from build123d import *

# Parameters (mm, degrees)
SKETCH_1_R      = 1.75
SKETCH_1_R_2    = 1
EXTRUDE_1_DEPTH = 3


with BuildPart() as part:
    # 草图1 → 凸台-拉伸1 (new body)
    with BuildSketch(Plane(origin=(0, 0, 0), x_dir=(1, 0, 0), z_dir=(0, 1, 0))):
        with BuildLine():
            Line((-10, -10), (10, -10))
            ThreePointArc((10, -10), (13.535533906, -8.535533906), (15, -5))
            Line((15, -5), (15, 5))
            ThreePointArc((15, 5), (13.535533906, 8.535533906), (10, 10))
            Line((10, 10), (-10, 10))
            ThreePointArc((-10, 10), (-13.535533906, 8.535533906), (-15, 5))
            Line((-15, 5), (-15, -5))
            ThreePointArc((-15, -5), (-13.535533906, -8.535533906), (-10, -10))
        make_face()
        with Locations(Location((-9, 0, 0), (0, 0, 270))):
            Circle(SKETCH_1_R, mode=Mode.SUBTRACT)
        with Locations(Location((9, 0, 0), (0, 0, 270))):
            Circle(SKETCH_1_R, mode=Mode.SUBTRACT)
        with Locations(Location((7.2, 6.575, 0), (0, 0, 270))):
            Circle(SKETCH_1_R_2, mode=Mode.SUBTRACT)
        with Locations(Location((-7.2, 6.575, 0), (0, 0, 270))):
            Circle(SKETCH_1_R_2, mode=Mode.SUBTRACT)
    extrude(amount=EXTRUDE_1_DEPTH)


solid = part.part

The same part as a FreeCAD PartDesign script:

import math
import FreeCAD as App
import Part
import Sketcher
Q = App.Units.Quantity

doc = App.newDocument("Part")
params = doc.addObject("Spreadsheet::Sheet", "Params")
for row, (alias, value) in enumerate([
    ("sketch1_diameter", "2 mm"),
    ("sketch1_radius", "5 mm"),
    ("sketch1_diameter2", "3.5 mm"),
    ("sketch1_width", "20 mm"),
    ("sketch1_height", "10 mm"),
    ("pad1_length", "3 mm"),
], start=1):
    params.set(f"A{row}", alias)
    params.set(f"B{row}", "=" + value)
    params.setAlias(f"B{row}", alias)

body = doc.addObject("PartDesign::Body", "Body")

sketch1 = body.newObject("Sketcher::SketchObject", "Sketch")
sketch1.AttachmentSupport = (doc.getObject("XZ_Plane"), [""])
sketch1.MapMode = "FlatFace"
sketch1.addGeometry(Part.LineSegment(App.Vector(-10, 10, 0), App.Vector(10, 10, 0)), False)
sketch1.addGeometry(Part.ArcOfCircle(Part.Circle(App.Vector(10, 5, 0), App.Vector(0, 0, 1), 5), math.radians(0), math.radians(90)), False)
sketch1.addGeometry(Part.LineSegment(App.Vector(15, 5, 0), App.Vector(15, -5, 0)), False)
sketch1.addGeometry(Part.ArcOfCircle(Part.Circle(App.Vector(10, -5, 0), App.Vector(0, 0, 1), 5), math.radians(-90), math.radians(0)), False)
sketch1.addGeometry(Part.LineSegment(App.Vector(10, -10, 0), App.Vector(-10, -10, 0)), False)
sketch1.addGeometry(Part.ArcOfCircle(Part.Circle(App.Vector(-10, -5, 0), App.Vector(0, 0, 1), 5), math.radians(180), math.radians(270)), False)
sketch1.addGeometry(Part.LineSegment(App.Vector(-15, -5, 0), App.Vector(-15, 5, 0)), False)
sketch1.addGeometry(Part.ArcOfCircle(Part.Circle(App.Vector(-10, 5, 0), App.Vector(0, 0, 1), 5), math.radians(90), math.radians(180)), False)
sketch1.addGeometry(Part.Circle(App.Vector(-9, 0, 0), App.Vector(0, 0, 1), 1.8), False)
sketch1.addGeometry(Part.Circle(App.Vector(9, 0, 0), App.Vector(0, 0, 1), 1.8), False)
sketch1.addGeometry(Part.Circle(App.Vector(-7.2, -6.6, 0), App.Vector(0, 0, 1), 1), False)
sketch1.addGeometry(Part.Circle(App.Vector(7.2, -6.6, 0), App.Vector(0, 0, 1), 1), False)
sketch1.addConstraint(Sketcher.Constraint("Tangent", 0, 2, 1, 2))
sketch1.addConstraint(Sketcher.Constraint("Tangent", 1, 1, 2, 1))
sketch1.addConstraint(Sketcher.Constraint("Tangent", 2, 2, 3, 2))
sketch1.addConstraint(Sketcher.Constraint("Tangent", 3, 1, 4, 1))
sketch1.addConstraint(Sketcher.Constraint("Tangent", 4, 2, 5, 2))
sketch1.addConstraint(Sketcher.Constraint("Tangent", 5, 1, 6, 1))
sketch1.addConstraint(Sketcher.Constraint("Tangent", 6, 2, 7, 2))
sketch1.addConstraint(Sketcher.Constraint("Tangent", 7, 1, 0, 1))
sketch1.addConstraint(Sketcher.Constraint("Horizontal", 0))
sketch1.addConstraint(Sketcher.Constraint("Vertical", 2))
sketch1.addConstraint(Sketcher.Constraint("Horizontal", 4))
sketch1.addConstraint(Sketcher.Constraint("Vertical", 6))
sketch1.addConstraint(Sketcher.Constraint("Equal", 1, 3))
sketch1.addConstraint(Sketcher.Constraint("Equal", 3, 5))
sketch1.addConstraint(Sketcher.Constraint("Equal", 5, 7))
sketch1.addConstraint(Sketcher.Constraint("Equal", 8, 9))
sketch1.addConstraint(Sketcher.Constraint("Equal", 10, 11))
sketch1.addConstraint(Sketcher.Constraint("Symmetric", 1, 3, 5, 3, -1, 1))
sketch1.addConstraint(Sketcher.Constraint("Symmetric", 8, 3, 9, 3, -1, 1))
sketch1.addConstraint(Sketcher.Constraint("Symmetric", 10, 3, 11, 3, -2))
sketch1.addConstraint(Sketcher.Constraint("PointOnObject", 8, 3, -1))
sketch1.addConstraint(Sketcher.Constraint("Diameter", 10, Q("2 mm")))
sketch1.addConstraint(Sketcher.Constraint("Radius", 1, Q("5 mm")))
sketch1.addConstraint(Sketcher.Constraint("Diameter", 8, Q("3.5 mm")))
sketch1.addConstraint(Sketcher.Constraint("DistanceX", 0, 1, 0, 2, Q("20 mm")))
sketch1.addConstraint(Sketcher.Constraint("DistanceY", 2, 2, 2, 1, Q("10 mm")))
sketch1.addConstraint(Sketcher.Constraint("DistanceX", 8, 3, -1, 1, Q("9 mm")))
sketch1.addConstraint(Sketcher.Constraint("DistanceX", 10, 3, -1, 1, Q("7.2 mm")))
sketch1.addConstraint(Sketcher.Constraint("DistanceY", 10, 3, -1, 1, Q("6.575 mm")))
sketch1.setExpression("Constraints[21]", "Params.sketch1_diameter")
sketch1.setExpression("Constraints[22]", "Params.sketch1_radius")
sketch1.setExpression("Constraints[23]", "Params.sketch1_diameter2")
sketch1.setExpression("Constraints[24]", "Params.sketch1_width")
sketch1.setExpression("Constraints[25]", "Params.sketch1_height")
pad1 = body.newObject("PartDesign::Pad", "Pad")
pad1.Profile = sketch1
pad1.setExpression("Length", "Params.pad1_length")
pad1.Reversed = True

doc.recompute()
